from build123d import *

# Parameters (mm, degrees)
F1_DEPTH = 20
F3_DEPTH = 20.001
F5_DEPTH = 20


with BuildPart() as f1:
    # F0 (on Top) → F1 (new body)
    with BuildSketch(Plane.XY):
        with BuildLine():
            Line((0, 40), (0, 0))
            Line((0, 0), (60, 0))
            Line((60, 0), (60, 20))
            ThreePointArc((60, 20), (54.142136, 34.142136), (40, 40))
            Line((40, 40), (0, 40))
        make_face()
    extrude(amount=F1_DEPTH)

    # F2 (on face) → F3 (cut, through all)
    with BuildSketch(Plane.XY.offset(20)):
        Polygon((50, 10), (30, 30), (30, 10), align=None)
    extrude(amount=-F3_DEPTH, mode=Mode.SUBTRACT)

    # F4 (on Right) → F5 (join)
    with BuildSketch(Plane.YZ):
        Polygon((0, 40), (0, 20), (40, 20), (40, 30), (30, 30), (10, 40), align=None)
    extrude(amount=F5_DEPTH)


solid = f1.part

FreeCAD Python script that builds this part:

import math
import FreeCAD as App
import Part
import Sketcher

V = App.Vector


def add_polygon(sketch, points):
    """Adds a closed chain of lines whose ends are joined by coincident constraints."""
    first, n = sketch.GeometryCount, len(points)
    for a, b in zip(points, points[1:] + points[:1]):
        sketch.addGeometry(Part.LineSegment(App.Vector(*a, 0), App.Vector(*b, 0)), False)
    for i in range(n):
        sketch.addConstraint(Sketcher.Constraint("Coincident", first + i, 2, first + (i + 1) % n, 1))

doc = App.newDocument("Part")
params = doc.addObject("Spreadsheet::Sheet", "Params")
for row, (alias, value) in enumerate([
    ("sketch1_radius", "19.999999 mm"),
    ("sketch1_width", "60 mm"),
    ("pad1_length", "20 mm"),
    ("sketch2_width", "20 mm"),
    ("sketch3_width", "40 mm"),
    ("sketch3_width2", "10 mm"),
    ("sketch3_height", "20 mm"),
    ("pad2_length", "20 mm"),
], start=1):
    params.set(f"A{row}", alias)
    params.set(f"B{row}", "=" + value)
    params.setAlias(f"B{row}", alias)

body = doc.addObject("PartDesign::Body", "Body")

# Sketch on XY plane
sketch1 = body.newObject("Sketcher::SketchObject", "Sketch")
sketch1.AttachmentSupport = (doc.getObject("XY_Plane"), [""])
sketch1.MapMode = "FlatFace"
sketch1.addGeometry([
    Part.LineSegment(V(0, 40, 0), V(0, 0, 0)),  # 0
    Part.LineSegment(V(0, 0, 0), V(60, 0, 0)),  # 1
    Part.LineSegment(V(60, 0, 0), V(60, 20, 0)),  # 2
    Part.ArcOfCircle(Part.Circle(V(40.000001, 20.000001, 0), V(0, 0, 1), 19.999999), math.radians(-0.000004), math.radians(90.000004)),  # 3
    Part.LineSegment(V(40, 40, 0), V(0, 40, 0)),  # 4
], False)
sketch1.addConstraint([
    Sketcher.Constraint("Coincident", 0, 2, 1, 1),
    Sketcher.Constraint("Coincident", 1, 2, 2, 1),
    Sketcher.Constraint("Tangent", 2, 2, 3, 1),
    Sketcher.Constraint("Tangent", 3, 2, 4, 1),
    Sketcher.Constraint("Coincident", 4, 2, 0, 1),
    Sketcher.Constraint("Vertical", 0),
    Sketcher.Constraint("Horizontal", 1),
    Sketcher.Constraint("Vertical", 2),
    Sketcher.Constraint("Horizontal", 4),
    Sketcher.Constraint("Coincident", 0, 2, -1, 1),
    Sketcher.Constraint("Equal", 4, 0),
    Sketcher.Constraint("Radius", 3, 19.999999),
    Sketcher.Constraint("DistanceX", 1, 1, 1, 2, 60.0),
])
sketch1.setExpression("Constraints[11]", "Params.sketch1_radius")
sketch1.setExpression("Constraints[12]", "Params.sketch1_width")
pad1 = body.newObject("PartDesign::Pad", "Pad")
pad1.Profile = sketch1
pad1.setExpression("Length", "Params.pad1_length")

# Sketch on XY plane
sketch2 = body.newObject("Sketcher::SketchObject", "Sketch001")
sketch2.AttachmentSupport = (doc.getObject("XY_Plane"), [""])
sketch2.MapMode = "FlatFace"
sketch2.AttachmentOffset = App.Placement(V(0, 0, 20), App.Rotation())
add_polygon(sketch2, [(50, 10), (30, 30), (30, 10)])  # lines 0-2
sketch2.addConstraint([
    Sketcher.Constraint("Vertical", 1),
    Sketcher.Constraint("Horizontal", 2),
    Sketcher.Constraint("Equal", 2, 1),
    Sketcher.Constraint("DistanceX", 2, 1, 2, 2, 20.0),
    Sketcher.Constraint("DistanceX", -1, 1, 0, 2, 30.0),
    Sketcher.Constraint("DistanceY", -1, 1, 0, 2, 30.0),
])
sketch2.setExpression("Constraints[6]", "Params.sketch2_width")
pocket1 = body.newObject("PartDesign::Pocket", "Pocket")
pocket1.Profile = sketch2
pocket1.Type = "ThroughAll"

# Sketch on YZ plane
sketch3 = body.newObject("Sketcher::SketchObject", "Sketch002")
sketch3.AttachmentSupport = (doc.getObject("YZ_Plane"), [""])
sketch3.MapMode = "FlatFace"
add_polygon(sketch3, [(0, 40), (0, 20), (40, 20), (40, 30), (30, 30), (10, 40)])  # lines 0-5
sketch3.addConstraint([
    Sketcher.Constraint("Vertical", 0),
    Sketcher.Constraint("Horizontal", 1),
    Sketcher.Constraint("Vertical", 2),
    Sketcher.Constraint("Horizontal", 3),
    Sketcher.Constraint("Horizontal", 5),
    Sketcher.Constraint("PointOnObject", 0, 2, -2),
    Sketcher.Constraint("Equal", 3, 5),
    Sketcher.Constraint("Equal", 5, 2),
    Sketcher.Constraint("DistanceX", 1, 1, 1, 2, 40.0),
    Sketcher.Constraint("DistanceX", 3, 2, 3, 1, 10.0),
    Sketcher.Constraint("DistanceY", 0, 2, 0, 1, 20.0),
    Sketcher.Constraint("DistanceY", -1, 1, 0, 2, 20.0),
])
sketch3.setExpression("Constraints[14]", "Params.sketch3_width")
sketch3.setExpression("Constraints[15]", "Params.sketch3_width2")
sketch3.setExpression("Constraints[16]", "Params.sketch3_height")
pad2 = body.newObject("PartDesign::Pad", "Pad001")
pad2.Profile = sketch3
pad2.setExpression("Length", "Params.pad2_length")

doc.recompute()
